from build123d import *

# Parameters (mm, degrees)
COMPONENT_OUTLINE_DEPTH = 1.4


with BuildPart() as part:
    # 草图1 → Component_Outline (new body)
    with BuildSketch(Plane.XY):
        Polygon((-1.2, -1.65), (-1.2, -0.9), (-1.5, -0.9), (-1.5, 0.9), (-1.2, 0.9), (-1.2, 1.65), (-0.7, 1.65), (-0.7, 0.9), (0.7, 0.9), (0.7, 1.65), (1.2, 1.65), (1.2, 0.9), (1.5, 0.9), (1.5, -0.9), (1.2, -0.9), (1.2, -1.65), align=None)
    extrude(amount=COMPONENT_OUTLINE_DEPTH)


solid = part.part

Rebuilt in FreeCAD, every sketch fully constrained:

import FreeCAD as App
import Part
import Sketcher

doc = App.newDocument("Part")
body = doc.addObject("PartDesign::Body", "Body")

# Sketch on XY plane
sketch1 = doc.addObject("Sketcher::SketchObject", "Sketch")
body.addObject(sketch1)
sketch1.AttachmentSupport = (doc.XY_Plane, [""])
sketch1.MapMode = "FlatFace"
sketch1.addGeometry(Part.LineSegment(App.Vector(-1.2, -0.9, 0), App.Vector(-1.2, -1.65, 0)), False)
sketch1.addGeometry(Part.LineSegment(App.Vector(-1.2, -1.65, 0), App.Vector(1.2, -1.65, 0)), False)
sketch1.addGeometry(Part.LineSegment(App.Vector(1.2, -1.65, 0), App.Vector(1.2, -0.9, 0)), False)
sketch1.addGeometry(Part.LineSegment(App.Vector(1.2, -0.9, 0), App.Vector(1.5, -0.9, 0)), False)
sketch1.addGeometry(Part.LineSegment(App.Vector(1.5, -0.9, 0), App.Vector(1.5, 0.9, 0)), False)
sketch1.addGeometry(Part.LineSegment(App.Vector(1.5, 0.9, 0), App.Vector(1.2, 0.9, 0)), False)
sketch1.addGeometry(Part.LineSegment(App.Vector(1.2, 0.9, 0), App.Vector(1.2, 1.65, 0)), False)
sketch1.addGeometry(Part.LineSegment(App.Vector(1.2, 1.65, 0), App.Vector(0.7, 1.65, 0)), False)
sketch1.addGeometry(Part.LineSegment(App.Vector(0.7, 1.65, 0), App.Vector(0.7, 0.9, 0)), False)
sketch1.addGeometry(Part.LineSegment(App.Vector(0.7, 0.9, 0), App.Vector(-0.7, 0.9, 0)), False)
sketch1.addGeometry(Part.LineSegment(App.Vector(-0.7, 0.9, 0), App.Vector(-0.7, 1.65, 0)), False)
sketch1.addGeometry(Part.LineSegment(App.Vector(-0.7, 1.65, 0), App.Vector(-1.2, 1.65, 0)), False)
sketch1.addGeometry(Part.LineSegment(App.Vector(-1.2, 1.65, 0), App.Vector(-1.2, 0.9, 0)), False)
sketch1.addGeometry(Part.LineSegment(App.Vector(-1.2, 0.9, 0), App.Vector(-1.5, 0.9, 0)), False)
sketch1.addGeometry(Part.LineSegment(App.Vector(-1.5, 0.9, 0), App.Vector(-1.5, -0.9, 0)), False)
sketch1.addGeometry(Part.LineSegment(App.Vector(-1.5, -0.9, 0), App.Vector(-1.2, -0.9, 0)), False)
sketch1.addConstraint(Sketcher.Constraint("Coincident", 0, 2, 1, 1))
sketch1.addConstraint(Sketcher.Constraint("Coincident", 1, 2, 2, 1))
sketch1.addConstraint(Sketcher.Constraint("Coincident", 2, 2, 3, 1))
sketch1.addConstraint(Sketcher.Constraint("Coincident", 3, 2, 4, 1))
sketch1.addConstraint(Sketcher.Constraint("Coincident", 4, 2, 5, 1))
sketch1.addConstraint(Sketcher.Constraint("Coincident", 5, 2, 6, 1))
sketch1.addConstraint(Sketcher.Constraint("Coincident", 6, 2, 7, 1))
sketch1.addConstraint(Sketcher.Constraint("Coincident", 7, 2, 8, 1))
sketch1.addConstraint(Sketcher.Constraint("Coincident", 8, 2, 9, 1))
sketch1.addConstraint(Sketcher.Constraint("Coincident", 9, 2, 10, 1))
sketch1.addConstraint(Sketcher.Constraint("Coincident", 10, 2, 11, 1))
sketch1.addConstraint(Sketcher.Constraint("Coincident", 11, 2, 12, 1))
sketch1.addConstraint(Sketcher.Constraint("Coincident", 12, 2, 13, 1))
sketch1.addConstraint(Sketcher.Constraint("Coincident", 13, 2, 14, 1))
sketch1.addConstraint(Sketcher.Constraint("Coincident", 14, 2, 15, 1))
sketch1.addConstraint(Sketcher.Constraint("Coincident", 15, 2, 0, 1))
sketch1.addConstraint(Sketcher.Constraint("Vertical", 0))
sketch1.addConstraint(Sketcher.Constraint("Horizontal", 1))
sketch1.addConstraint(Sketcher.Constraint("Vertical", 2))
sketch1.addConstraint(Sketcher.Constraint("Horizontal", 3))
sketch1.addConstraint(Sketcher.Constraint("Vertical", 4))
sketch1.addConstraint(Sketcher.Constraint("Horizontal", 5))
sketch1.addConstraint(Sketcher.Constraint("Vertical", 6))
sketch1.addConstraint(Sketcher.Constraint("Horizontal", 7))
sketch1.addConstraint(Sketcher.Constraint("Vertical", 8))
sketch1.addConstraint(Sketcher.Constraint("Horizontal", 9))
sketch1.addConstraint(Sketcher.Constraint("Vertical", 10))
sketch1.addConstraint(Sketcher.Constraint("Horizontal", 11))
sketch1.addConstraint(Sketcher.Constraint("Vertical", 12))
sketch1.addConstraint(Sketcher.Constraint("Horizontal", 13))
sketch1.addConstraint(Sketcher.Constraint("Vertical", 14))
sketch1.addConstraint(Sketcher.Constraint("Horizontal", 15))
sketch1.addConstraint(Sketcher.Constraint("Symmetric", 0, 2, 6, 2, -1, 1))
sketch1.addConstraint(Sketcher.Constraint("Symmetric", 1, 2, 11, 2, -1, 1))
sketch1.addConstraint(Sketcher.Constraint("Symmetric", 3, 2, 13, 2, -1, 1))
sketch1.addConstraint(Sketcher.Constraint("Symmetric", 5, 2, 12, 2, -2))
sketch1.addConstraint(Sketcher.Constraint("Horizontal", 5, 2, 8, 2))
sketch1.addConstraint(Sketcher.Constraint("Horizontal", 3, 2, 14, 2))
sketch1.addConstraint(Sketcher.Constraint("Equal", 7, 11))
sketch1.addConstraint(Sketcher.Constraint("DistanceX", 1, 1, 1, 2, 2.4))
sketch1.addConstraint(Sketcher.Constraint("DistanceX", 3, 1, 3, 2, 0.3))
sketch1.addConstraint(Sketcher.Constraint("DistanceX", 7, 2, 7, 1, 0.5))
sketch1.addConstraint(Sketcher.Constraint("DistanceY", 4, 1, 4, 2, 1.8))
sketch1.addConstraint(Sketcher.Constraint("DistanceY", 0, 2, 0, 1, 0.75))
pad1 = doc.addObject("PartDesign::Pad", "Pad")
body.addObject(pad1)
pad1.Profile = sketch1
pad1.Length = 1.4

doc.recompute()
